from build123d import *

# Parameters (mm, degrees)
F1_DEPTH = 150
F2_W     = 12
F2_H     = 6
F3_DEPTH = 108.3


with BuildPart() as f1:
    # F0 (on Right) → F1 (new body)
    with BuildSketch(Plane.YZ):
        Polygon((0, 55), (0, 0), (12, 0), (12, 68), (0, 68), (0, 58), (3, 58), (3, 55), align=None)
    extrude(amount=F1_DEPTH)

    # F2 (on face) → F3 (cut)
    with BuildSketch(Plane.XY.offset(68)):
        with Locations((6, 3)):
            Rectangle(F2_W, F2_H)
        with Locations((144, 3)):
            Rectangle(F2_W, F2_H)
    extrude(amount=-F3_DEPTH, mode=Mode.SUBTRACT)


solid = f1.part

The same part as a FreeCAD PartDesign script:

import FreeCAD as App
import Part
import Sketcher
from FreeCAD import Vector


def add_polygon(sketch, points):
    """Adds a closed chain of lines whose ends are joined by coincident constraints."""
    first, n = sketch.GeometryCount, len(points)
    for a, b in zip(points, points[1:] + points[:1]):
        sketch.addGeometry(Part.LineSegment(App.Vector(*a, 0), App.Vector(*b, 0)), False)
    for i in range(n):
        sketch.addConstraint(Sketcher.Constraint("Coincident", first + i, 2, first + (i + 1) % n, 1))

doc = App.newDocument("Part")
body = doc.addObject("PartDesign::Body", "Body")

# Sketch on YZ plane
sketch1 = doc.addObject("Sketcher::SketchObject", "Sketch")
body.addObject(sketch1)
sketch1.AttachmentSupport = (doc.YZ_Plane, [""])
sketch1.MapMode = "FlatFace"
add_polygon(sketch1, [(0, 55), (0, 0), (12, 0), (12, 68), (0, 68), (0, 58), (3, 58), (3, 55)])  # lines 0-7
sketch1.addConstraint([
    Sketcher.Constraint("Vertical", 0),
    Sketcher.Constraint("Horizontal", 1),
    Sketcher.Constraint("Vertical", 2),
    Sketcher.Constraint("Horizontal", 3),
    Sketcher.Constraint("Vertical", 4),
    Sketcher.Constraint("Horizontal", 5),
    Sketcher.Constraint("Vertical", 6),
    Sketcher.Constraint("Horizontal", 7),
    Sketcher.Constraint("Coincident", 0, 2, -1, 1),
    Sketcher.Constraint("PointOnObject", 3, 2, -2),
    Sketcher.Constraint("Equal", 7, 6),
    Sketcher.Constraint("DistanceX", 1, 1, 1, 2, 12.0),
    Sketcher.Constraint("DistanceX", 5, 1, 5, 2, 3.0),
    Sketcher.Constraint("DistanceY", 0, 2, 0, 1, 55.0),
    Sketcher.Constraint("DistanceY", 2, 1, 2, 2, 68.0),
])
pad1 = doc.addObject("PartDesign::Pad", "Pad")
body.addObject(pad1)
pad1.Profile = sketch1
pad1.Length = 150

# Sketch on XY plane
sketch2 = doc.addObject("Sketcher::SketchObject", "Sketch001")
body.addObject(sketch2)
sketch2.AttachmentSupport = (doc.XY_Plane, [""])
sketch2.MapMode = "FlatFace"
sketch2.AttachmentOffset = App.Placement(Vector(0, 0, 68), App.Rotation())
add_polygon(sketch2, [(0, 6), (0, 0), (12, 0), (12, 6)])  # lines 0-3
add_polygon(sketch2, [(138, 6), (138, 0), (150, 0), (150, 6)])  # lines 4-7
sketch2.addConstraint([
    Sketcher.Constraint("Vertical", 0),
    Sketcher.Constraint("Horizontal", 1),
    Sketcher.Constraint("Vertical", 2),
    Sketcher.Constraint("Horizontal", 3),
    Sketcher.Constraint("Vertical", 4),
    Sketcher.Constraint("Horizontal", 5),
    Sketcher.Constraint("Vertical", 6),
    Sketcher.Constraint("Horizontal", 7),
    Sketcher.Constraint("Coincident", 0, 2, -1, 1),
    Sketcher.Constraint("PointOnObject", 4, 2, -1),
    Sketcher.Constraint("Horizontal", 3, 2, 6, 2),
    Sketcher.Constraint("Equal", 3, 5),
    Sketcher.Constraint("DistanceX", 1, 1, 1, 2, 12.0),
    Sketcher.Constraint("DistanceY", 0, 2, 0, 1, 6.0),
    Sketcher.Constraint("DistanceX", -1, 1, 4, 2, 138.0),
])
pocket1 = doc.addObject("PartDesign::Pocket", "Pocket")
body.addObject(pocket1)
pocket1.Profile = sketch2
pocket1.Length = 108.3

doc.recompute()
